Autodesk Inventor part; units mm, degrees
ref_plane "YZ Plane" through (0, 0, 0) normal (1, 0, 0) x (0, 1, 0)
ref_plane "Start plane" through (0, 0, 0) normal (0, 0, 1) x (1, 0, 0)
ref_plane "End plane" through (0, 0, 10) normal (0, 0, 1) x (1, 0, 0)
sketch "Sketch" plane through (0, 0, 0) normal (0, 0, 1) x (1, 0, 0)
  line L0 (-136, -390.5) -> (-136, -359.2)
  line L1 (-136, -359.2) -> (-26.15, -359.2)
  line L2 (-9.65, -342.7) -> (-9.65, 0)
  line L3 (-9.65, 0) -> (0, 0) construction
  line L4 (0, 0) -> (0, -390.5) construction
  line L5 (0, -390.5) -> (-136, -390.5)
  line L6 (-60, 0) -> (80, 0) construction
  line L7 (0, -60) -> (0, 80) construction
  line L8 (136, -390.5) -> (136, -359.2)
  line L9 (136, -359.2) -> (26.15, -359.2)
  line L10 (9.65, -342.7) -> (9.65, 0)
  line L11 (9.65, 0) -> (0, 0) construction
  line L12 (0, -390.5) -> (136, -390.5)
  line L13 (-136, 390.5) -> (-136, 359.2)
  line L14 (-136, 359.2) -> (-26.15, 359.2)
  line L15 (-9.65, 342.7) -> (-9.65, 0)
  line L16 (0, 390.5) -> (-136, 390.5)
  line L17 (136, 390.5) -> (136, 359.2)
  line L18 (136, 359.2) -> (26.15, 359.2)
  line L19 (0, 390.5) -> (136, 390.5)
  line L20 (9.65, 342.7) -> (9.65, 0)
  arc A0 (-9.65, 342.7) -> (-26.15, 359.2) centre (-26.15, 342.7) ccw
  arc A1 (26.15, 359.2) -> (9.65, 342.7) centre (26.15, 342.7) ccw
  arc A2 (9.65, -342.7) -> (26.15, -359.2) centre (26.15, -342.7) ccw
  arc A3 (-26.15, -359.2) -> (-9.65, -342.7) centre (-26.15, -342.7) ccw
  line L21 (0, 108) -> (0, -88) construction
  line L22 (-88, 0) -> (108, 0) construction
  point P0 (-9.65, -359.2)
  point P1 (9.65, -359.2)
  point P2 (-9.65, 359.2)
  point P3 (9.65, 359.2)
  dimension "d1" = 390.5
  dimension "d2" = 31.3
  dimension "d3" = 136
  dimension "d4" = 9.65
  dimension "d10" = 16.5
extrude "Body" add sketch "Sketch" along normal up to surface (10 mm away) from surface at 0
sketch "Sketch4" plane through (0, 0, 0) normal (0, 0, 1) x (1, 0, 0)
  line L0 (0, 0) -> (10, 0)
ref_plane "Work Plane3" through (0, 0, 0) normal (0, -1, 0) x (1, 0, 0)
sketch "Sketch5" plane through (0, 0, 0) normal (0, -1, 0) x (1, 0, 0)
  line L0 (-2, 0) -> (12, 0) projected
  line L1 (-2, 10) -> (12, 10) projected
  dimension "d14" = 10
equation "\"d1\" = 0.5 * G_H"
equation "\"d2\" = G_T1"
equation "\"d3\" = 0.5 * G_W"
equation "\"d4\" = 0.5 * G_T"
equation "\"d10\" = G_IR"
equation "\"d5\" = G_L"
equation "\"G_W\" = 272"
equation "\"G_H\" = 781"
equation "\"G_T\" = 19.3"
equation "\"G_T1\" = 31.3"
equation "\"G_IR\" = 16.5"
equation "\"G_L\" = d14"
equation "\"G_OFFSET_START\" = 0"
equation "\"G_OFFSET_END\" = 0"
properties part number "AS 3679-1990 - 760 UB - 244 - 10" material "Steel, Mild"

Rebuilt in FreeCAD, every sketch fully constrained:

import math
import FreeCAD as App
import Part
import Sketcher
Q = App.Units.Quantity

doc = App.newDocument("Part")
body = doc.addObject("PartDesign::Body", "Body")

sketch1 = body.newObject("Sketcher::SketchObject", "Sketch")
sketch1.AttachmentSupport = (doc.getObject("XY_Plane"), [""])
sketch1.MapMode = "FlatFace"
sketch1.addGeometry([
    Part.LineSegment(App.Vector(-136, -359, 0), App.Vector(-136, -390, 0)),
    Part.LineSegment(App.Vector(-136, -390, 0), App.Vector(136, -390, 0)),
    Part.LineSegment(App.Vector(136, -390, 0), App.Vector(136, -359, 0)),
    Part.LineSegment(App.Vector(136, -359, 0), App.Vector(26, -359, 0)),
    Part.ArcOfCircle(Part.Circle(App.Vector(26, -343, 0), App.Vector(0, 0, 1), 16), math.radians(180), math.radians(270)),
    Part.LineSegment(App.Vector(10, -343, 0), App.Vector(10, 343, 0)),
    Part.ArcOfCircle(Part.Circle(App.Vector(26, 343, 0), App.Vector(0, 0, 1), 16), math.radians(90), math.radians(180)),
    Part.LineSegment(App.Vector(26, 359, 0), App.Vector(136, 359, 0)),
    Part.LineSegment(App.Vector(136, 359, 0), App.Vector(136, 390, 0)),
    Part.LineSegment(App.Vector(136, 390, 0), App.Vector(-136, 390, 0)),
    Part.LineSegment(App.Vector(-136, 390, 0), App.Vector(-136, 359, 0)),
    Part.LineSegment(App.Vector(-136, 359, 0), App.Vector(-26, 359, 0)),
    Part.ArcOfCircle(Part.Circle(App.Vector(-26, 343, 0), App.Vector(0, 0, 1), 16), math.radians(0), math.radians(90)),
    Part.LineSegment(App.Vector(-10, 343, 0), App.Vector(-10, -343, 0)),
    Part.ArcOfCircle(Part.Circle(App.Vector(-26, -343, 0), App.Vector(0, 0, 1), 16), math.radians(-90), math.radians(0)),
    Part.LineSegment(App.Vector(-26, -359, 0), App.Vector(-136, -359, 0)),
], False)
sketch1.addConstraint([
    Sketcher.Constraint("Coincident", 0, 2, 1, 1),
    Sketcher.Constraint("Coincident", 1, 2, 2, 1),
    Sketcher.Constraint("Coincident", 2, 2, 3, 1),
    Sketcher.Constraint("Tangent", 3, 2, 4, 2),
    Sketcher.Constraint("Tangent", 4, 1, 5, 1),
    Sketcher.Constraint("Tangent", 5, 2, 6, 2),
    Sketcher.Constraint("Tangent", 6, 1, 7, 1),
    Sketcher.Constraint("Coincident", 7, 2, 8, 1),
    Sketcher.Constraint("Coincident", 8, 2, 9, 1),
    Sketcher.Constraint("Coincident", 9, 2, 10, 1),
    Sketcher.Constraint("Coincident", 10, 2, 11, 1),
    Sketcher.Constraint("Tangent", 11, 2, 12, 2),
    Sketcher.Constraint("Tangent", 12, 1, 13, 1),
    Sketcher.Constraint("Tangent", 13, 2, 14, 2),
    Sketcher.Constraint("Tangent", 14, 1, 15, 1),
    Sketcher.Constraint("Coincident", 15, 2, 0, 1),
    Sketcher.Constraint("Vertical", 0),
    Sketcher.Constraint("Horizontal", 1),
    Sketcher.Constraint("Vertical", 2),
    Sketcher.Constraint("Horizontal", 3),
    Sketcher.Constraint("Vertical", 5),
    Sketcher.Constraint("Horizontal", 7),
    Sketcher.Constraint("Vertical", 8),
    Sketcher.Constraint("Horizontal", 9),
    Sketcher.Constraint("Vertical", 10),
    Sketcher.Constraint("Horizontal", 11),
    Sketcher.Constraint("Vertical", 13),
    Sketcher.Constraint("Horizontal", 15),
    Sketcher.Constraint("Equal", 4, 6),
    Sketcher.Constraint("Equal", 6, 12),
    Sketcher.Constraint("Equal", 12, 14),
    Sketcher.Constraint("Symmetric", 4, 3, 12, 3, -1, 1),
    Sketcher.Constraint("Symmetric", 0, 2, 8, 2, -1, 1),
    Sketcher.Constraint("Symmetric", 7, 2, 10, 2, -2),
    Sketcher.Constraint("Symmetric", 2, 2, 15, 2, -2),
    Sketcher.Constraint("Radius", 4, Q("16.5 mm")),
    Sketcher.Constraint("DistanceY", 0, 2, 0, 1, Q("31.3 mm")),
    Sketcher.Constraint("DistanceX", 0, 2, -1, 1, Q("136 mm")),
    Sketcher.Constraint("DistanceY", 0, 2, -1, 1, Q("390.5 mm")),
    Sketcher.Constraint("DistanceX", -1, 1, 4, 1, Q("9.65 mm")),
])
pad1 = body.newObject("PartDesign::Pad", "Pad")
pad1.Profile = sketch1
pad1.Length = 10

doc.recompute()
